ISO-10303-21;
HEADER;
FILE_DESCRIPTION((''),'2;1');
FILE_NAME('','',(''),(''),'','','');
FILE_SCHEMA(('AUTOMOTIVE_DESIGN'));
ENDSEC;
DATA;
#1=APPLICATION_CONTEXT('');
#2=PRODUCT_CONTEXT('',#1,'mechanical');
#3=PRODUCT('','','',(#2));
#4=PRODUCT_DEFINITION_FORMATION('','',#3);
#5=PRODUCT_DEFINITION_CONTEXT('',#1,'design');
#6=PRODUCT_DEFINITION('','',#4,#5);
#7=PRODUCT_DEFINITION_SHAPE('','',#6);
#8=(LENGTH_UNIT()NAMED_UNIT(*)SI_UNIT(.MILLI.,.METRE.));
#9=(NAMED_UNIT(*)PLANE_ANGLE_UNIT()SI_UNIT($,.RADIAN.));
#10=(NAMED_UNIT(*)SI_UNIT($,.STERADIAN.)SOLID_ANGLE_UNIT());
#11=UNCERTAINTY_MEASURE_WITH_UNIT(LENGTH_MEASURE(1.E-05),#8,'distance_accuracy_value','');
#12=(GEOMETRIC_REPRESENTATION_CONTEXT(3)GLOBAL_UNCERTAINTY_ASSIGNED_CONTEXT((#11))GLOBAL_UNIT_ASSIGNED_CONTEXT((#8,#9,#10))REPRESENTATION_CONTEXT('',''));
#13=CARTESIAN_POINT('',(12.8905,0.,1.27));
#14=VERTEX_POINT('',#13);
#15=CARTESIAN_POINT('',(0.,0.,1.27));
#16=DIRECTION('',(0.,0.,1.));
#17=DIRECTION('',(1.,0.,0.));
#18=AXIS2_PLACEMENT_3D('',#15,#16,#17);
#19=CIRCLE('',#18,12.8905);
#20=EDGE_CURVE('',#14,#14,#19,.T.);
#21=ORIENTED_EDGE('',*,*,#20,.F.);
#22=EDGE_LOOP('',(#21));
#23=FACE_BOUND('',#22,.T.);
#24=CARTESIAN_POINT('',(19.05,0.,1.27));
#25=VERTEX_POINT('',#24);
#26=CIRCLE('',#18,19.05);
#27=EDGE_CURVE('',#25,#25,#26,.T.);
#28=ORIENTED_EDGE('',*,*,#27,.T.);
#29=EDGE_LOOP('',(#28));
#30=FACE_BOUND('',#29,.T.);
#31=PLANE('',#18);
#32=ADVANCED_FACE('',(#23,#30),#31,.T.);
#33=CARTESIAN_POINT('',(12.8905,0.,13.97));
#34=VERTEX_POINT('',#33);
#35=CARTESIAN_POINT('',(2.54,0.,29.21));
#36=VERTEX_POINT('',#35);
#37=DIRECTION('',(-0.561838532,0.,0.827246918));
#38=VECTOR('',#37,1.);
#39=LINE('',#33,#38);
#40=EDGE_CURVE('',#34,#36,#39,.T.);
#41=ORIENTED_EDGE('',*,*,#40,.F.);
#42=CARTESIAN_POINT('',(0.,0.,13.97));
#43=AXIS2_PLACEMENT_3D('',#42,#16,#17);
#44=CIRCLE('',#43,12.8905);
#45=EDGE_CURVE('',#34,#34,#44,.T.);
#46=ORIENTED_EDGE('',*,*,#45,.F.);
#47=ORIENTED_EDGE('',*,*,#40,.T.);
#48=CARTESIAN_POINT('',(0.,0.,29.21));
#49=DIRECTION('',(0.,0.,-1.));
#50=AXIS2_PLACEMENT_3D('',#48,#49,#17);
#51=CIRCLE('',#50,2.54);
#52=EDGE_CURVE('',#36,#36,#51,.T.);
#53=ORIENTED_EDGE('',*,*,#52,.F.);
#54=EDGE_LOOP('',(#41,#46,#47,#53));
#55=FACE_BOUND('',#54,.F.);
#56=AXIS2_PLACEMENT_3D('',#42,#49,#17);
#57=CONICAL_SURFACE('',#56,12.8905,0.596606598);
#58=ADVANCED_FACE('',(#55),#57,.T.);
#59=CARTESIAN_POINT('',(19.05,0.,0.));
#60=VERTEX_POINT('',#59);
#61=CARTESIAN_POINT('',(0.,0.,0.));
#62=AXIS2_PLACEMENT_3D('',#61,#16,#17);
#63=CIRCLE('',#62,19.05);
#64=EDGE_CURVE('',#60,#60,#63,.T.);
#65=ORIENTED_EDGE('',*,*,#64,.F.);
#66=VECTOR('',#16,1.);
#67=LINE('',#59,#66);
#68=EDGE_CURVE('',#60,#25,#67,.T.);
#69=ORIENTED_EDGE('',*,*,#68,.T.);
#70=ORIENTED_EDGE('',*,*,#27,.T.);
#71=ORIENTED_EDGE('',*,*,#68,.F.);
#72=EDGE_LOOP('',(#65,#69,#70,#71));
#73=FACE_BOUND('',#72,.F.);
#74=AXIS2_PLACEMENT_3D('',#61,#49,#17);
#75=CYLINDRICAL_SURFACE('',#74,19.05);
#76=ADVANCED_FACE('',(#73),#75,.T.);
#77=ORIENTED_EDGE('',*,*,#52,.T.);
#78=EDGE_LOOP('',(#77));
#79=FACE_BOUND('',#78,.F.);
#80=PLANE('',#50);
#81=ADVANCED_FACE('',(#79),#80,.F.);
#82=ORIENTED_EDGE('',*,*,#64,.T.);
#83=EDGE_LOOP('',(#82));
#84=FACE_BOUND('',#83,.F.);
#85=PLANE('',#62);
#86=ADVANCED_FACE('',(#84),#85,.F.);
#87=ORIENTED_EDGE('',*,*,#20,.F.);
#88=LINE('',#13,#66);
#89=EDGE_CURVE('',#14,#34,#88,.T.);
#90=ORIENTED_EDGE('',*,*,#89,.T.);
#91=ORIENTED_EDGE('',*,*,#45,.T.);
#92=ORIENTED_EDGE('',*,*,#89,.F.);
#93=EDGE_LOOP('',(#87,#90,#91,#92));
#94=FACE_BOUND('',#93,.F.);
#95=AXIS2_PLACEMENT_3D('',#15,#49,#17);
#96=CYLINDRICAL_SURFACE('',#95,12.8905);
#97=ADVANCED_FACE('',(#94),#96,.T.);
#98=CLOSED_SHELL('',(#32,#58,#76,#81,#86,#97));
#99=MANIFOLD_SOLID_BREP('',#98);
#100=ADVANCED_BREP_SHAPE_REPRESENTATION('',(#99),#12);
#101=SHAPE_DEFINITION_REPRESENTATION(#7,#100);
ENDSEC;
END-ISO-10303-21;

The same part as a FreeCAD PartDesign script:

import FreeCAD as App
import Part
import Sketcher

V = App.Vector
Q = App.Units.Quantity


def add_polygon(sketch, points):
    """Adds a closed chain of lines whose ends are joined by coincident constraints."""
    first, n = sketch.GeometryCount, len(points)
    for a, b in zip(points, points[1:] + points[:1]):
        sketch.addGeometry(Part.LineSegment(App.Vector(*a, 0), App.Vector(*b, 0)), False)
    for i in range(n):
        sketch.addConstraint(Sketcher.Constraint("Coincident", first + i, 2, first + (i + 1) % n, 1))

doc = App.newDocument("Part")
body = doc.addObject("PartDesign::Body", "Body")

# Sketch on XY plane
sketch1 = body.newObject("Sketcher::SketchObject", "Sketch")
sketch1.AttachmentSupport = (doc.getObject("XY_Plane"), [""])
sketch1.MapMode = "FlatFace"
sketch1.addGeometry(Part.Circle(V(0, 0, 0), V(0, 0, 1), 19.05), False)
sketch1.addConstraint([
    Sketcher.Constraint("Coincident", 0, 3, -1, 1),
    Sketcher.Constraint("Diameter", 0, Q("1.5 in")),
])
pad1 = body.newObject("PartDesign::Pad", "Pad")
pad1.Profile = sketch1
pad1.Length = Q("0.05 in")

# Sketch on XY plane
sketch2 = body.newObject("Sketcher::SketchObject", "Sketch001")
sketch2.AttachmentSupport = (doc.getObject("XY_Plane"), [""])
sketch2.MapMode = "FlatFace"
sketch2.AttachmentOffset = App.Placement(V(0, 0, 0.05 * 25.4), App.Rotation())
sketch2.addGeometry(Part.Circle(V(0, 0, 0), V(0, 0, 1), 12.8905), False)
sketch2.addConstraint([
    Sketcher.Constraint("Coincident", 0, 3, -1, 1),
    Sketcher.Constraint("Diameter", 0, Q("1.015 in")),
])
pad2 = body.newObject("PartDesign::Pad", "Pad001")
pad2.Profile = sketch2
pad2.Length = Q("0.5 in")

# Sketch on XZ plane
sketch3 = body.newObject("Sketcher::SketchObject", "Sketch002")
sketch3.AttachmentSupport = (doc.getObject("XZ_Plane"), [""])
sketch3.MapMode = "FlatFace"
add_polygon(sketch3, [(2.54, 29.21), (0, 29.21), (0, 13.97), (12.8905, 13.97)])  # lines 0-3
sketch3.addConstraint([
    Sketcher.Constraint("Horizontal", 0),
    Sketcher.Constraint("Vertical", 1),
    Sketcher.Constraint("Horizontal", 2),
    Sketcher.Constraint("PointOnObject", 0, 2, -2),
    Sketcher.Constraint("DistanceX", 0, 2, 0, 1, Q("0.1 in")),
    Sketcher.Constraint("DistanceY", 1, 2, 1, 1, Q("0.6 in")),
    Sketcher.Constraint("DistanceY", -1, 1, 0, 2, Q("1.15 in")),
    Sketcher.Constraint("DistanceX", 2, 1, 2, 2, Q("0.5075 in")),
])
revolution = body.newObject("PartDesign::Revolution", "Revolution")
revolution.Profile = sketch3
revolution.ReferenceAxis = (sketch3, ["V_Axis"])
revolution.Angle = 360

doc.recompute()
